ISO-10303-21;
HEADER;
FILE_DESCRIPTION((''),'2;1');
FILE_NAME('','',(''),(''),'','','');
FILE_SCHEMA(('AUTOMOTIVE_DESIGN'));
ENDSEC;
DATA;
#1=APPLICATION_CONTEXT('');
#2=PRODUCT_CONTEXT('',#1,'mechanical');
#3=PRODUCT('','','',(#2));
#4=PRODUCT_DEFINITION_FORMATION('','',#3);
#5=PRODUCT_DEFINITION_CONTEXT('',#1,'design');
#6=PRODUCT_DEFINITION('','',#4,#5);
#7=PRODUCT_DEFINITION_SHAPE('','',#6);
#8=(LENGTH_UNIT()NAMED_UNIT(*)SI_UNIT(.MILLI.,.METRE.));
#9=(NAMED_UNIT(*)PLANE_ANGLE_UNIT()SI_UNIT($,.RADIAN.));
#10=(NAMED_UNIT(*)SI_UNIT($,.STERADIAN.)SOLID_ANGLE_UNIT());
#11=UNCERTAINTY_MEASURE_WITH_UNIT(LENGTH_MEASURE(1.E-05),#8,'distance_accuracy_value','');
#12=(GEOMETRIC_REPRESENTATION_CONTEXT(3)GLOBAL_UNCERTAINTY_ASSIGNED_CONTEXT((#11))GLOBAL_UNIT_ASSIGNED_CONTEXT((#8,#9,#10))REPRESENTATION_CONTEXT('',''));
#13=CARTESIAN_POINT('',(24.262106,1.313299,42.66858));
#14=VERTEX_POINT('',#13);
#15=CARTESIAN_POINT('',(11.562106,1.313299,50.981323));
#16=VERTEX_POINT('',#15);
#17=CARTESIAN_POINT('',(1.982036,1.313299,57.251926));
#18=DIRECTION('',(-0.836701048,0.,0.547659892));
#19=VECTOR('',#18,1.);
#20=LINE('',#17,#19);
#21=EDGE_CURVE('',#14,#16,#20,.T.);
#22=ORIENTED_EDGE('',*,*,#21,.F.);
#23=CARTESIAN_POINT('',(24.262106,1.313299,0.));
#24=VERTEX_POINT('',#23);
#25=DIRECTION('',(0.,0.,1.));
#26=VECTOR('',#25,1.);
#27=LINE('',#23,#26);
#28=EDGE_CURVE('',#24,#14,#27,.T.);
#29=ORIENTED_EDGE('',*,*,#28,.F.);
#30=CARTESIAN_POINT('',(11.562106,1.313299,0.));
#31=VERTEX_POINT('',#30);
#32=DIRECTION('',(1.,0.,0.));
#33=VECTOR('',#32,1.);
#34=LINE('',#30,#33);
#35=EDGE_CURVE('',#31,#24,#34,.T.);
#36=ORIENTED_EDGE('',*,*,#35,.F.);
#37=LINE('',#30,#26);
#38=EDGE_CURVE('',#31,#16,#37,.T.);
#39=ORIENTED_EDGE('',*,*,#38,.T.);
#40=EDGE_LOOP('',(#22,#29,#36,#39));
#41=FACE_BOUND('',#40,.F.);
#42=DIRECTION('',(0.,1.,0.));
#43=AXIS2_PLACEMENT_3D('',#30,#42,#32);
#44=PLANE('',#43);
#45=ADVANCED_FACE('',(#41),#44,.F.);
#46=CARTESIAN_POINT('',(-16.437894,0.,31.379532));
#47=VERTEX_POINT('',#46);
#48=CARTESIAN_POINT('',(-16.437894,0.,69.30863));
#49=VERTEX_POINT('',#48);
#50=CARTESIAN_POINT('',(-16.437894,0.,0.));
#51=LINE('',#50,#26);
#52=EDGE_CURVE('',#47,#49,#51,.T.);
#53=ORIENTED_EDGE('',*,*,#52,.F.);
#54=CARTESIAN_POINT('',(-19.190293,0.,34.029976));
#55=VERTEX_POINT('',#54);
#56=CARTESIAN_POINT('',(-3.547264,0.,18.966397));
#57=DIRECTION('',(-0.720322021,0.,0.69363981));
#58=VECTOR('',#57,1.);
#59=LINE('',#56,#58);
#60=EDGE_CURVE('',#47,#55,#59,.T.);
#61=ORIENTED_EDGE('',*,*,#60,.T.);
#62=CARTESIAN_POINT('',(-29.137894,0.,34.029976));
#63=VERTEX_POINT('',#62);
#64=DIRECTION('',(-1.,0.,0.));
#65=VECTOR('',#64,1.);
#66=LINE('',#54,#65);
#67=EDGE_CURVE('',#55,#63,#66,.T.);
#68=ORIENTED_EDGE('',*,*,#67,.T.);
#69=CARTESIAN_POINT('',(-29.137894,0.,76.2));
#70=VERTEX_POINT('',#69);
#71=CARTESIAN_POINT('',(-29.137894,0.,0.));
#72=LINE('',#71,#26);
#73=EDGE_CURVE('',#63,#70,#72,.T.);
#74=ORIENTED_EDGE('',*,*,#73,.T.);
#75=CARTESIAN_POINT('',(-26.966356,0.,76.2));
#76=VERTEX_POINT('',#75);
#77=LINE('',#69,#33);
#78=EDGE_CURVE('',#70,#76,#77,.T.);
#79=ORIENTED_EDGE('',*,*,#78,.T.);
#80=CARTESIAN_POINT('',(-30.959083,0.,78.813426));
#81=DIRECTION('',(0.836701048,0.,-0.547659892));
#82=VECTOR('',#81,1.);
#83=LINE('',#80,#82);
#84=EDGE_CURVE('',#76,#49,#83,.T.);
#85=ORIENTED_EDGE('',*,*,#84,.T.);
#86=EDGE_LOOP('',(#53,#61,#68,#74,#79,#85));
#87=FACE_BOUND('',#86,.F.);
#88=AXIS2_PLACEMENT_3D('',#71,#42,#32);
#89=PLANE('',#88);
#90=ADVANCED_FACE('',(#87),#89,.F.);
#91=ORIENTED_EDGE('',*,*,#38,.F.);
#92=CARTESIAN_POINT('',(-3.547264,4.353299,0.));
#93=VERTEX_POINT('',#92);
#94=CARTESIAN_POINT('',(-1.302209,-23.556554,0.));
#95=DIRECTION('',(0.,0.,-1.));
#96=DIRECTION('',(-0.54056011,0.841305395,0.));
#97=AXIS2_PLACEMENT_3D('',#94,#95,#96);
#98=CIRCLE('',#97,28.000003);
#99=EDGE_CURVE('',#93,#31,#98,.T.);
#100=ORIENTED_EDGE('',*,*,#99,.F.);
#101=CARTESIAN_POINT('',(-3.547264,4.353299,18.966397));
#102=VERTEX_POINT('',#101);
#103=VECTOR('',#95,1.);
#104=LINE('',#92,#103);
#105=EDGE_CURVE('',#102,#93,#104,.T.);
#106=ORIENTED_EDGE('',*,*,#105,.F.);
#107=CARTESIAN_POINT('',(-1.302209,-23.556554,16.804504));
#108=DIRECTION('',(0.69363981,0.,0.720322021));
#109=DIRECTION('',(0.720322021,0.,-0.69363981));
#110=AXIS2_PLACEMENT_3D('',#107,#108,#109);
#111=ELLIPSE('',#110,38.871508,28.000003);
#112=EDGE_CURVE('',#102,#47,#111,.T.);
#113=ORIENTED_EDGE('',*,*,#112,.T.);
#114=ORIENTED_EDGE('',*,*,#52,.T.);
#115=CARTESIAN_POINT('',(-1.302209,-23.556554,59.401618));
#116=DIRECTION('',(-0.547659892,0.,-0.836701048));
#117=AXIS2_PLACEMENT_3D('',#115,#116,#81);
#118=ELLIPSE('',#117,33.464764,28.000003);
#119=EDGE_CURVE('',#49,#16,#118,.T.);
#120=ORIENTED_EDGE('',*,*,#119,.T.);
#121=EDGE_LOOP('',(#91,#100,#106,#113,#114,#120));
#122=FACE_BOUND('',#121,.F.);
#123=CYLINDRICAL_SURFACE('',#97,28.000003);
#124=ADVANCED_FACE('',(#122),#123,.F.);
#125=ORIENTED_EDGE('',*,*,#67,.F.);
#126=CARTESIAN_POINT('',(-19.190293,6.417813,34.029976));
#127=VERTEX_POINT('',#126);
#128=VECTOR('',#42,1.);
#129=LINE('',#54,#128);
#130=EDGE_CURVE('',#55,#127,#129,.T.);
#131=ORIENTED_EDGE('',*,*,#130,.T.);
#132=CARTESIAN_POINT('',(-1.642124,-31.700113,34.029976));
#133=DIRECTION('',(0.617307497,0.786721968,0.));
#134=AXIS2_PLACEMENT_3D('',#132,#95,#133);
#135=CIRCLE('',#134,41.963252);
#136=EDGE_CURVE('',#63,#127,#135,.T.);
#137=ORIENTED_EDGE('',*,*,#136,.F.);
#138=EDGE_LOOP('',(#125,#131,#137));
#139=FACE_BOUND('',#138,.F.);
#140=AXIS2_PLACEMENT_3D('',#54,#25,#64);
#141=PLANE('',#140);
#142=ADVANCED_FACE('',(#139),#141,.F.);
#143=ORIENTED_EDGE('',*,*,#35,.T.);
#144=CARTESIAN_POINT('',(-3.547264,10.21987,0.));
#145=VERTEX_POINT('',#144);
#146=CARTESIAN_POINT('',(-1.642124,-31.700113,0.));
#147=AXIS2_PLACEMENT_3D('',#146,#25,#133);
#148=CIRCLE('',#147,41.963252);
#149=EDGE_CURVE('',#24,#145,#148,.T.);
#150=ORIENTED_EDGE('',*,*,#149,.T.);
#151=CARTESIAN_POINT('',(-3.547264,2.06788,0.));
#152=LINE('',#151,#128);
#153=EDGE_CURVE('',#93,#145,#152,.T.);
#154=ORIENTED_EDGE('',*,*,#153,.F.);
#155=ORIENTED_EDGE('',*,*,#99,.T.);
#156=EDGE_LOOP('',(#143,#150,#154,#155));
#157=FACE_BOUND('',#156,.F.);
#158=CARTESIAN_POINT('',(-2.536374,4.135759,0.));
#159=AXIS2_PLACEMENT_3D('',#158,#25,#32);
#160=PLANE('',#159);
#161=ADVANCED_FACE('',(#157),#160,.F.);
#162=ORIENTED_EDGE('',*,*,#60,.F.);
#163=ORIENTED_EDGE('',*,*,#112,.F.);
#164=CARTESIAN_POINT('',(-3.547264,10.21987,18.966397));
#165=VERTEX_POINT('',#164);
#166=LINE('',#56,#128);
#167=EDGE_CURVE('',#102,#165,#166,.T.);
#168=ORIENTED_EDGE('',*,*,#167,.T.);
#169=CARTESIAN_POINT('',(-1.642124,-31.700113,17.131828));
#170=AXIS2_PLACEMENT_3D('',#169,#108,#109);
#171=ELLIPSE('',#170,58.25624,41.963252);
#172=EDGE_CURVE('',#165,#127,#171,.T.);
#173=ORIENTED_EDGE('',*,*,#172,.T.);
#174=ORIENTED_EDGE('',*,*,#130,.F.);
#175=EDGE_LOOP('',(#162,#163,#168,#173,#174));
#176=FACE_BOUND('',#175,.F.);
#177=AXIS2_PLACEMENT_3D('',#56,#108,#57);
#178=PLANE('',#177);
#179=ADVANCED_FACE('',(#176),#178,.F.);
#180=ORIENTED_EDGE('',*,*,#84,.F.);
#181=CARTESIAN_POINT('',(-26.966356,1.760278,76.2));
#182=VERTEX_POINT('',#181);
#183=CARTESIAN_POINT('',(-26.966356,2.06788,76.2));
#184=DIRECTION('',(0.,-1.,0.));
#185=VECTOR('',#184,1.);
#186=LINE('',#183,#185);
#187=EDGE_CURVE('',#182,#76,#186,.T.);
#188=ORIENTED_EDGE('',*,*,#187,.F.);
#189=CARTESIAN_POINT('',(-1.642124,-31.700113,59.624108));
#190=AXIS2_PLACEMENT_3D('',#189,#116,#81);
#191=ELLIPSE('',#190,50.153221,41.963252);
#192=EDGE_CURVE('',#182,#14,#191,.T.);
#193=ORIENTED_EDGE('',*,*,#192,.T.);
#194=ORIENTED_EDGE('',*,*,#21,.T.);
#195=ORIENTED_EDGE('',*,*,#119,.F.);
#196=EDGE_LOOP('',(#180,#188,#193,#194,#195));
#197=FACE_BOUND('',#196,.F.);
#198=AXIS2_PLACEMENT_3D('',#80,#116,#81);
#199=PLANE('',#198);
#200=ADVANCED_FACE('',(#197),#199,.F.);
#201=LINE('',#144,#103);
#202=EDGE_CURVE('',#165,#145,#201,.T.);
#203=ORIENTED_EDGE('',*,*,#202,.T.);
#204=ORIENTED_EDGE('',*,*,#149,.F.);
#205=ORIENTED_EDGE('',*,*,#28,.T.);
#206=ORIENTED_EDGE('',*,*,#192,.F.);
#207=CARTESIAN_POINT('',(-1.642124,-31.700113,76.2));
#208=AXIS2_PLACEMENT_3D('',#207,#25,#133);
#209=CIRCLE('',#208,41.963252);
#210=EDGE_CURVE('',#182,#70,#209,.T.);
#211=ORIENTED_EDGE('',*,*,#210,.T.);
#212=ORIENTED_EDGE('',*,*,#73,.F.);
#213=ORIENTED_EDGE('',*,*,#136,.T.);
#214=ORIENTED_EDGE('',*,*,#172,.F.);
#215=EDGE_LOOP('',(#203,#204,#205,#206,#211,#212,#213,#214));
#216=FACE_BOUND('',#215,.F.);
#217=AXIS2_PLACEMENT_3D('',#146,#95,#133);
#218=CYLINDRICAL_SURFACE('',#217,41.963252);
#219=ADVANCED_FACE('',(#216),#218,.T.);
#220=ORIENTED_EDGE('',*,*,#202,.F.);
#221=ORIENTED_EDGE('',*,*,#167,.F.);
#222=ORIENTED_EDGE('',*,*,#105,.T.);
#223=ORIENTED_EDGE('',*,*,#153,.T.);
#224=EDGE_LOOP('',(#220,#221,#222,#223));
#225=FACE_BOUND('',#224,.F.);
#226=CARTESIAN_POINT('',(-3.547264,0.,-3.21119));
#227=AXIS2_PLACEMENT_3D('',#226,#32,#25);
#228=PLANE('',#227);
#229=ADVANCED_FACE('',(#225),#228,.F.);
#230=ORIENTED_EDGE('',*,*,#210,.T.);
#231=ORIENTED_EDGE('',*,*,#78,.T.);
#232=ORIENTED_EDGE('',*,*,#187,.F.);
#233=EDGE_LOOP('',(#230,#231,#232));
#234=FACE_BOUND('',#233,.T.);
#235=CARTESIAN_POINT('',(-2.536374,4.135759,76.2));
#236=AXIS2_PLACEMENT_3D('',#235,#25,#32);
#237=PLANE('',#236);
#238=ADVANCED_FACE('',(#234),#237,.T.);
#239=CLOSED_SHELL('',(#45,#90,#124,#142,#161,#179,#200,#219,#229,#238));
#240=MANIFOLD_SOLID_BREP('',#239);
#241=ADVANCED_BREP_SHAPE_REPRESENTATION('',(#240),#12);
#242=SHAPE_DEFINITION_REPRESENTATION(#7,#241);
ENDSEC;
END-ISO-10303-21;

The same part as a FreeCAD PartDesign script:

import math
import FreeCAD as App
import Part
import Sketcher
Q = App.Units.Quantity

doc = App.newDocument("Part")
body = doc.addObject("PartDesign::Body", "Body")

# Sketch on XY plane
sketch1 = doc.addObject("Sketcher::SketchObject", "Sketch")
body.addObject(sketch1)
sketch1.AttachmentSupport = (doc.XY_Plane, [""])
sketch1.MapMode = "FlatFace"
sketch1.addGeometry([
    Part.LineSegment(App.Vector(-29, 0, 0), App.Vector(-16, 0, 0)),
    Part.ArcOfCircle(Part.Circle(App.Vector(-1, -24, 0), App.Vector(0, 0, 1), 28), math.radians(63), math.radians(123)),
    Part.LineSegment(App.Vector(12, 1, 0), App.Vector(24, 1, 0)),
    Part.ArcOfCircle(Part.Circle(App.Vector(-2, -32, 0), App.Vector(0, 0, 1), 42), math.radians(52), math.radians(131)),
], False)
sketch1.addConstraint([
    Sketcher.Constraint("Coincident", 0, 2, 1, 2),
    Sketcher.Constraint("Coincident", 1, 1, 2, 1),
    Sketcher.Constraint("Coincident", 2, 2, 3, 1),
    Sketcher.Constraint("Coincident", 3, 2, 0, 1),
    Sketcher.Constraint("Horizontal", 0),
    Sketcher.Constraint("Horizontal", 2),
    Sketcher.Constraint("PointOnObject", 0, 2, -1),
    Sketcher.Constraint("Equal", 0, 2),
    Sketcher.Constraint("DistanceX", 0, 1, 0, 2, Q("0.5 in")),
    Sketcher.Constraint("Radius", 1, Q("28.000003 mm")),
    Sketcher.Constraint("Radius", 3, Q("41.963252 mm")),
    Sketcher.Constraint("DistanceY", -1, 1, 1, 1, Q("1.313299 mm")),
    Sketcher.Constraint("DistanceX", 0, 2, 1, 1, Q("28 mm")),
    Sketcher.Constraint("DistanceX", 1, 3, -1, 1, Q("1.302209 mm")),
])
pad1 = doc.addObject("PartDesign::Pad", "Pad")
body.addObject(pad1)
pad1.Profile = sketch1
pad1.Length = Q("3 in")

# Sketch on XZ plane
sketch2 = doc.addObject("Sketcher::SketchObject", "Sketch001")
body.addObject(sketch2)
sketch2.AttachmentSupport = (doc.XZ_Plane, [""])
sketch2.MapMode = "FlatFace"
sketch2.addGeometry([
    Part.LineSegment(App.Vector(26, 42, 0), App.Vector(25, 79, 0)),
    Part.LineSegment(App.Vector(25, 79, 0), App.Vector(-31, 79, 0)),
    Part.LineSegment(App.Vector(-31, 79, 0), App.Vector(26, 42, 0)),
], False)
sketch2.addConstraint([
    Sketcher.Constraint("Coincident", 0, 2, 1, 1),
    Sketcher.Constraint("Coincident", 1, 2, 2, 1),
    Sketcher.Constraint("Coincident", 2, 2, 0, 1),
    Sketcher.Constraint("Horizontal", 1),
    Sketcher.Constraint("Distance", 0, Q("37.203691 mm")),
    Sketcher.Constraint("DistanceX", 1, 2, 1, 1, Q("55.545387 mm")),
    Sketcher.Constraint("DistanceX", 0, 2, 2, 2, Q("1.260829 mm")),
    Sketcher.Constraint("DistanceX", -1, 1, 0, 2, Q("24.586304 mm")),
    Sketcher.Constraint("DistanceY", -1, 1, 0, 2, Q("78.813426 mm")),
])
pocket1 = doc.addObject("PartDesign::Pocket", "Pocket")
body.addObject(pocket1)
pocket1.Profile = sketch2
pocket1.Length = 25

# Sketch on XZ plane
sketch3 = doc.addObject("Sketcher::SketchObject", "Sketch002")
body.addObject(sketch3)
sketch3.AttachmentSupport = (doc.XZ_Plane, [""])
sketch3.MapMode = "FlatFace"
sketch3.addGeometry([
    Part.LineSegment(App.Vector(-35, -3, 0), App.Vector(-4, -3, 0)),  # 0
    Part.LineSegment(App.Vector(-4, -3, 0), App.Vector(-4, 19, 0)),  # 1
    Part.LineSegment(App.Vector(-4, 19, 0), App.Vector(-19, 34, 0)),  # 2
    Part.LineSegment(App.Vector(-19, 34, 0), App.Vector(-35, 34, 0)),  # 3
    Part.LineSegment(App.Vector(-35, 34, 0), App.Vector(-35, -3, 0)),  # 4
], False)
sketch3.addConstraint([
    Sketcher.Constraint("Coincident", 0, 2, 1, 1),
    Sketcher.Constraint("Coincident", 1, 2, 2, 1),
    Sketcher.Constraint("Coincident", 2, 2, 3, 1),
    Sketcher.Constraint("Coincident", 3, 2, 4, 1),
    Sketcher.Constraint("Coincident", 4, 2, 0, 1),
    Sketcher.Constraint("Horizontal", 0),
    Sketcher.Constraint("Vertical", 1),
    Sketcher.Constraint("Horizontal", 3),
    Sketcher.Constraint("Vertical", 4),
    Sketcher.Constraint("DistanceX", 0, 1, 0, 2, Q("31.098595 mm")),
    Sketcher.Constraint("DistanceX", 3, 2, 3, 1, Q("15.455566 mm")),
    Sketcher.Constraint("DistanceY", 1, 1, 1, 2, Q("22.177587 mm")),
    Sketcher.Constraint("DistanceY", 4, 2, 4, 1, Q("37.241166 mm")),
    Sketcher.Constraint("DistanceY", 0, 2, -1, 1, Q("3.21119 mm")),
    Sketcher.Constraint("DistanceX", 3, 2, -1, 1, Q("34.645859 mm")),
])
pocket2 = doc.addObject("PartDesign::Pocket", "Pocket001")
body.addObject(pocket2)
pocket2.Profile = sketch3
pocket2.Length = 25

doc.recompute()
